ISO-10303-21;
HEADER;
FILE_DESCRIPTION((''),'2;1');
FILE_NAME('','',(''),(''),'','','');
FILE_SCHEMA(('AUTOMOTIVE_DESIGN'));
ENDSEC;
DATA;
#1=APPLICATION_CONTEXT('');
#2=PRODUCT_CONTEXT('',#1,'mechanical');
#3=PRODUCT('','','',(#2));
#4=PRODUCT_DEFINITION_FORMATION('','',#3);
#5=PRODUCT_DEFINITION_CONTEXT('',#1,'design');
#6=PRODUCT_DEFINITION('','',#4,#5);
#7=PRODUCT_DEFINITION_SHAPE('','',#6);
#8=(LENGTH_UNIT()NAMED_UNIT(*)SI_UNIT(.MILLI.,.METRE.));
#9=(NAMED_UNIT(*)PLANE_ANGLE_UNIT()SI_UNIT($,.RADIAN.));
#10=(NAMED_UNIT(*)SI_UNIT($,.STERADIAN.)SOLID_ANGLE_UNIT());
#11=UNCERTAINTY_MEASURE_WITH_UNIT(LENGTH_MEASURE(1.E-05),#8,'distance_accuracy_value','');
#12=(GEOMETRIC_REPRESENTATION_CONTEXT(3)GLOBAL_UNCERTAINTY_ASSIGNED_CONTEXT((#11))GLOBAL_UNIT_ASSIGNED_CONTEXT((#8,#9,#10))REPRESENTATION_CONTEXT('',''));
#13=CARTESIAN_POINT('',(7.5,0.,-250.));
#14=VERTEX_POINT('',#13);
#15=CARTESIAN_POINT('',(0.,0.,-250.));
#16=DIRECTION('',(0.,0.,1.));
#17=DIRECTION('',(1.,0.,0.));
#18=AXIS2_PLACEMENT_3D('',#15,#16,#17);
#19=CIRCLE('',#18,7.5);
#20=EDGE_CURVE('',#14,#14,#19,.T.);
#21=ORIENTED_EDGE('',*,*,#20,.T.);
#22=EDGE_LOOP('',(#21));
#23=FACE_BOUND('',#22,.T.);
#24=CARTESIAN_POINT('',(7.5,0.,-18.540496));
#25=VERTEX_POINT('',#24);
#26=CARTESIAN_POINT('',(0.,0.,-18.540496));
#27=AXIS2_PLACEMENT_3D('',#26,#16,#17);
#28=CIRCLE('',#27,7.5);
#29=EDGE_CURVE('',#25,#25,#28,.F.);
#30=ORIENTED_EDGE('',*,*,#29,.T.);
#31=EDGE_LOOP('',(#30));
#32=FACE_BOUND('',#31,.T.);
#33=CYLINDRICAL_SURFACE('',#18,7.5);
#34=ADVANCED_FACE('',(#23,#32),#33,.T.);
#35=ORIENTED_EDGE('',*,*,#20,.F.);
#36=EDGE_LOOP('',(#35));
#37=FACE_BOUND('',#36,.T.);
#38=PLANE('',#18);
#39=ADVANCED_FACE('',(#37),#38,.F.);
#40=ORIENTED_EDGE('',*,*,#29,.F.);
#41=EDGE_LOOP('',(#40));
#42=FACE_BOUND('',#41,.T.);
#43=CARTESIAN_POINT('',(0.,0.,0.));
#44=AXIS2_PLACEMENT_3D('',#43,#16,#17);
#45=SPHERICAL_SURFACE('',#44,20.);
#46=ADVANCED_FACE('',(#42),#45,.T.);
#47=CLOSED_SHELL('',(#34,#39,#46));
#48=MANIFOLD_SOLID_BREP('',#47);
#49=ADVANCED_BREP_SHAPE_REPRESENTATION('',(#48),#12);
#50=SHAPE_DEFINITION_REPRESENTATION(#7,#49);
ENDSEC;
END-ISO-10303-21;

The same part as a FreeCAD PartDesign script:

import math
import FreeCAD as App
import Part
import Sketcher
from FreeCAD import Vector
Q = App.Units.Quantity

doc = App.newDocument("Part")
body = doc.addObject("PartDesign::Body", "Body")

# Sketch on XY plane
sketch1 = doc.addObject("Sketcher::SketchObject", "Sketch")
body.addObject(sketch1)
sketch1.AttachmentSupport = (doc.XY_Plane, [""])
sketch1.MapMode = "FlatFace"
sketch1.addGeometry(Part.Circle(Vector(0, 0, 0), Vector(0, 0, 1), 8), False)
sketch1.addConstraint([
    Sketcher.Constraint("Coincident", 0, 3, -1, 1),
    Sketcher.Constraint("Diameter", 0, Q("15 mm")),
])
pad1 = doc.addObject("PartDesign::Pad", "Pad")
body.addObject(pad1)
pad1.Profile = sketch1
pad1.Length = 250
pad1.Reversed = True

# Sketch on XY plane
sketch2 = doc.addObject("Sketcher::SketchObject", "Sketch001")
body.addObject(sketch2)
sketch2.AttachmentSupport = (doc.XY_Plane, [""])
sketch2.MapMode = "FlatFace"
sketch2.addGeometry([
    Part.LineSegment(Vector(0, 20, 0), Vector(0, -20, 0)),
    Part.ArcOfCircle(Part.Circle(Vector(0, 0, 0), Vector(0, 0, 1), 20), math.radians(-90), math.radians(90)),
], False)
sketch2.addConstraint([
    Sketcher.Constraint("Coincident", 0, 1, 1, 2),
    Sketcher.Constraint("Coincident", 1, 1, 0, 2),
    Sketcher.Constraint("Vertical", 0),
    Sketcher.Constraint("Coincident", 1, 3, -1, 1),
    Sketcher.Constraint("PointOnObject", 0, 1, -2),
    Sketcher.Constraint("Radius", 1, Q("20 mm")),
])
revolution = doc.addObject("PartDesign::Revolution", "Revolution")
body.addObject(revolution)
revolution.Profile = sketch2
revolution.ReferenceAxis = (sketch2, ["V_Axis"])
revolution.Angle = 360

doc.recompute()
